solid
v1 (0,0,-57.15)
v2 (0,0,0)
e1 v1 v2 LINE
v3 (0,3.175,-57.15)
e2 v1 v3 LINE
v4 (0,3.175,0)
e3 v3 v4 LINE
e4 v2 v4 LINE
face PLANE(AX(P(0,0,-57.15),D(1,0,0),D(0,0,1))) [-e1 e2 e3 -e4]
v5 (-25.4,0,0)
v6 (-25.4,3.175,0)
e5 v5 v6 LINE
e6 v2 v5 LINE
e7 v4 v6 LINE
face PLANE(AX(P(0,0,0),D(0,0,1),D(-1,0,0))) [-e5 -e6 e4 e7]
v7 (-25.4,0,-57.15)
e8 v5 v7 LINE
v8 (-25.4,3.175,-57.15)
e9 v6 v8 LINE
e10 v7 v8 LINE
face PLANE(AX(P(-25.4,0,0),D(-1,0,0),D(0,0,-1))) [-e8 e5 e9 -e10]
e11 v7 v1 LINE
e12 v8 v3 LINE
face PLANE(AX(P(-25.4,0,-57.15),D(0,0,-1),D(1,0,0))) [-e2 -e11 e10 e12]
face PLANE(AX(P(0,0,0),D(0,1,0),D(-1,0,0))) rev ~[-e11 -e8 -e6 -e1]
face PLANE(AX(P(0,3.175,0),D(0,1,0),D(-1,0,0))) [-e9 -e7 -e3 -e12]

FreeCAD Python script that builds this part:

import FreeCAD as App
import Part
import Sketcher
Q = App.Units.Quantity


def add_polygon(sketch, points):
    """Adds a closed chain of lines whose ends are joined by coincident constraints."""
    first, n = sketch.GeometryCount, len(points)
    for a, b in zip(points, points[1:] + points[:1]):
        sketch.addGeometry(Part.LineSegment(App.Vector(*a, 0), App.Vector(*b, 0)), False)
    for i in range(n):
        sketch.addConstraint(Sketcher.Constraint("Coincident", first + i, 2, first + (i + 1) % n, 1))

doc = App.newDocument("Part")
params = doc.addObject("Spreadsheet::Sheet", "Params")
for row, (alias, value) in enumerate([
    ("sketch1_width", "1 in"),
    ("sketch1_height", "2.25 in"),
    ("pad1_length", "0.125 in"),
], start=1):
    params.set(f"A{row}", alias)
    params.set(f"B{row}", "=" + value)
    params.setAlias(f"B{row}", alias)

body = doc.addObject("PartDesign::Body", "Body")

sketch1 = doc.addObject("Sketcher::SketchObject", "Sketch")
body.addObject(sketch1)
sketch1.AttachmentSupport = (doc.XZ_Plane, [""])
sketch1.MapMode = "FlatFace"
add_polygon(sketch1, [(-25, 0), (0, 0), (0, -57), (-25, -57)])
sketch1.addConstraint([
    Sketcher.Constraint("Horizontal", 0),
    Sketcher.Constraint("Vertical", 1),
    Sketcher.Constraint("Horizontal", 2),
    Sketcher.Constraint("Vertical", 3),
    Sketcher.Constraint("Coincident", 0, 2, -1, 1),
    Sketcher.Constraint("DistanceX", 0, 1, 0, 2, Q("1 in")),
    Sketcher.Constraint("DistanceY", 1, 2, 1, 1, Q("2.25 in")),
])
sketch1.setExpression("Constraints[9]", "Params.sketch1_width")
sketch1.setExpression("Constraints[10]", "Params.sketch1_height")
pad1 = doc.addObject("PartDesign::Pad", "Pad")
body.addObject(pad1)
pad1.Profile = sketch1
pad1.setExpression("Length", "Params.pad1_length")
pad1.Reversed = True

doc.recompute()
